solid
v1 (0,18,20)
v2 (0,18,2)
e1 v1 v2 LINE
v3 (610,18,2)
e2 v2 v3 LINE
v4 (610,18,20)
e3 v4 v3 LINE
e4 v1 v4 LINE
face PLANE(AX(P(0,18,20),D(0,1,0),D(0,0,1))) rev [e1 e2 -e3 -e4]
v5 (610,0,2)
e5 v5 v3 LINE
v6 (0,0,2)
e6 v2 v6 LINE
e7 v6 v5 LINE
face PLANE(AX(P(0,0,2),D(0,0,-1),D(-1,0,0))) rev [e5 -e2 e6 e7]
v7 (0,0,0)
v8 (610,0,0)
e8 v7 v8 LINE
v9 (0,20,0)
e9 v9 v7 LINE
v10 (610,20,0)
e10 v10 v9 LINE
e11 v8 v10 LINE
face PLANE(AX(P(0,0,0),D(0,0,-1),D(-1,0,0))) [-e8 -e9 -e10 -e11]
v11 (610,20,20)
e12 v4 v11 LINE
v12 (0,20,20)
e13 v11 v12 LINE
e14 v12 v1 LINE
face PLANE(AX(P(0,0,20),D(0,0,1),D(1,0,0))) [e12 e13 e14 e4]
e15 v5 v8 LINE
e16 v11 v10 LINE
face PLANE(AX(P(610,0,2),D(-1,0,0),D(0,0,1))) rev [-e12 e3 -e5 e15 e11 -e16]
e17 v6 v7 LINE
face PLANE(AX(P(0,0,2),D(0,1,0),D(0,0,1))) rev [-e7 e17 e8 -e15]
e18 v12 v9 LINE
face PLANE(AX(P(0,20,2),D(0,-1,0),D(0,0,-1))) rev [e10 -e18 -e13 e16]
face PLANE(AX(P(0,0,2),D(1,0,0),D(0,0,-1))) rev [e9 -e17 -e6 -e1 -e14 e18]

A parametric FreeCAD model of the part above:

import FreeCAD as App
import Part
import Sketcher
Q = App.Units.Quantity


def add_polygon(sketch, points):
    """Adds a closed chain of lines whose ends are joined by coincident constraints."""
    first, n = sketch.GeometryCount, len(points)
    for a, b in zip(points, points[1:] + points[:1]):
        sketch.addGeometry(Part.LineSegment(App.Vector(*a, 0), App.Vector(*b, 0)), False)
    for i in range(n):
        sketch.addConstraint(Sketcher.Constraint("Coincident", first + i, 2, first + (i + 1) % n, 1))

doc = App.newDocument("Part")
params = doc.addObject("Spreadsheet::Sheet", "Params")
for row, (alias, value) in enumerate([
    ("sketch1_width", "610 mm"),
    ("sketch1_height", "20 mm"),
    ("pad1_length", "2 mm"),
    ("sketch2_width", "610 mm"),
    ("sketch2_height", "2 mm"),
    ("pad2_length", "18 mm"),
], start=1):
    params.set(f"A{row}", alias)
    params.set(f"B{row}", "=" + value)
    params.setAlias(f"B{row}", alias)

body = doc.addObject("PartDesign::Body", "Body")

sketch1 = body.newObject("Sketcher::SketchObject", "Sketch")
sketch1.AttachmentSupport = (doc.getObject("XY_Plane"), [""])
sketch1.MapMode = "FlatFace"
add_polygon(sketch1, [(0, 20), (0, 0), (610, 0), (610, 20)])
sketch1.addConstraint([
    Sketcher.Constraint("Vertical", 0),
    Sketcher.Constraint("Horizontal", 1),
    Sketcher.Constraint("Vertical", 2),
    Sketcher.Constraint("Horizontal", 3),
    Sketcher.Constraint("Coincident", 0, 2, -1, 1),
    Sketcher.Constraint("DistanceX", 1, 1, 1, 2, Q("610 mm")),
    Sketcher.Constraint("DistanceY", 0, 2, 0, 1, Q("20 mm")),
])
sketch1.setExpression("Constraints[9]", "Params.sketch1_width")
sketch1.setExpression("Constraints[10]", "Params.sketch1_height")
pad1 = body.newObject("PartDesign::Pad", "Pad")
pad1.Profile = sketch1
pad1.setExpression("Length", "Params.pad1_length")

sketch2 = body.newObject("Sketcher::SketchObject", "Sketch001")
sketch2.AttachmentSupport = (doc.getObject("XY_Plane"), [""])
sketch2.MapMode = "FlatFace"
sketch2.AttachmentOffset = App.Placement(App.Vector(0, 0, 2), App.Rotation())
add_polygon(sketch2, [(0, 20), (0, 18), (610, 18), (610, 20)])
sketch2.addConstraint([
    Sketcher.Constraint("Vertical", 0),
    Sketcher.Constraint("Horizontal", 1),
    Sketcher.Constraint("Vertical", 2),
    Sketcher.Constraint("Horizontal", 3),
    Sketcher.Constraint("PointOnObject", 0, 2, -2),
    Sketcher.Constraint("DistanceX", 1, 1, 1, 2, Q("610 mm")),
    Sketcher.Constraint("DistanceY", 0, 2, 0, 1, Q("2 mm")),
    Sketcher.Constraint("DistanceY", -1, 1, 0, 2, Q("18 mm")),
])
sketch2.setExpression("Constraints[9]", "Params.sketch2_width")
sketch2.setExpression("Constraints[10]", "Params.sketch2_height")
pad2 = body.newObject("PartDesign::Pad", "Pad001")
pad2.Profile = sketch2
pad2.setExpression("Length", "Params.pad2_length")

doc.recompute()
